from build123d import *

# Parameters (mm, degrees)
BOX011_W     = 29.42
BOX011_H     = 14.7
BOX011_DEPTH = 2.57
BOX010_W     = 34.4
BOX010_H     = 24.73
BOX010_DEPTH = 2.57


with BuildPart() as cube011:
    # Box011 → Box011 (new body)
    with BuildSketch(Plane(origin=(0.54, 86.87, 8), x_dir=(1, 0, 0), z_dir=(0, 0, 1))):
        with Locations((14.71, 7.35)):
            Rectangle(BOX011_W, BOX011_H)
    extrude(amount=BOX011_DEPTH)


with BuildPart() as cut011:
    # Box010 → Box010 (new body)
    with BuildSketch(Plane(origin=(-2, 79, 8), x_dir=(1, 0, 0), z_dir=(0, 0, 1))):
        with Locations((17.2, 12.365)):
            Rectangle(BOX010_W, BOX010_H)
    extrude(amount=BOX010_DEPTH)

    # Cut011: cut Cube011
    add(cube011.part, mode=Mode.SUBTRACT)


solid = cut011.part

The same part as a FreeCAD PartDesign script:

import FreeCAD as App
import Part
import Sketcher
from FreeCAD import Vector
Q = App.Units.Quantity


def add_polygon(sketch, points):
    """Adds a closed chain of lines whose ends are joined by coincident constraints."""
    first, n = sketch.GeometryCount, len(points)
    for a, b in zip(points, points[1:] + points[:1]):
        sketch.addGeometry(Part.LineSegment(App.Vector(*a, 0), App.Vector(*b, 0)), False)
    for i in range(n):
        sketch.addConstraint(Sketcher.Constraint("Coincident", first + i, 2, first + (i + 1) % n, 1))

doc = App.newDocument("Part")
body = doc.addObject("PartDesign::Body", "Body")

# Sketch on XY plane
sketch1 = body.newObject("Sketcher::SketchObject", "Sketch")
sketch1.AttachmentSupport = (doc.getObject("XY_Plane"), [""])
sketch1.MapMode = "FlatFace"
sketch1.AttachmentOffset = App.Placement(Vector(0, 0, 8), App.Rotation())
add_polygon(sketch1, [(0.54, 101.57), (0.54, 86.87), (29.96, 86.87), (29.96, 101.57)])  # lines 0-3
sketch1.addConstraint(Sketcher.Constraint("Vertical", 0))
sketch1.addConstraint(Sketcher.Constraint("Horizontal", 1))
sketch1.addConstraint(Sketcher.Constraint("Vertical", 2))
sketch1.addConstraint(Sketcher.Constraint("Horizontal", 3))
sketch1.addConstraint(Sketcher.Constraint("DistanceY", 0, 2, 0, 1, Q("14.7 mm")))
sketch1.addConstraint(Sketcher.Constraint("DistanceX", 1, 1, 1, 2, Q("29.42 mm")))
sketch1.addConstraint(Sketcher.Constraint("DistanceX", -1, 1, 0, 2, Q("0.54 mm")))
sketch1.addConstraint(Sketcher.Constraint("DistanceY", -1, 1, 0, 2, Q("86.87 mm")))
pad1 = body.newObject("PartDesign::Pad", "Pad")
pad1.Profile = sketch1
pad1.Length = 2.57
body2 = doc.addObject("PartDesign::Body", "Body001")

# Sketch on XY plane
sketch2 = body2.newObject("Sketcher::SketchObject", "Sketch001")
sketch2.AttachmentSupport = (doc.getObject("XY_Plane001"), [""])
sketch2.MapMode = "FlatFace"
sketch2.AttachmentOffset = App.Placement(Vector(0, 0, 8), App.Rotation())
add_polygon(sketch2, [(-2, 103.73), (-2, 79), (32.4, 79), (32.4, 103.73)])  # lines 0-3
sketch2.addConstraint(Sketcher.Constraint("Vertical", 0))
sketch2.addConstraint(Sketcher.Constraint("Horizontal", 1))
sketch2.addConstraint(Sketcher.Constraint("Vertical", 2))
sketch2.addConstraint(Sketcher.Constraint("Horizontal", 3))
sketch2.addConstraint(Sketcher.Constraint("DistanceX", 1, 1, 1, 2, Q("34.4 mm")))
sketch2.addConstraint(Sketcher.Constraint("DistanceX", 0, 2, -1, 1, Q("2 mm")))
sketch2.addConstraint(Sketcher.Constraint("DistanceY", -1, 1, 0, 2, Q("79 mm")))
sketch2.addConstraint(Sketcher.Constraint("DistanceY", 0, 2, 0, 1, Q("24.73 mm")))
pad2 = body2.newObject("PartDesign::Pad", "Pad001")
pad2.Profile = sketch2
pad2.Length = 2.57
doc.recompute()

boolean = body2.newObject("PartDesign::Boolean", "Boolean")
boolean.Type = "Cut"
boolean.addObjects([body])

doc.recompute()
